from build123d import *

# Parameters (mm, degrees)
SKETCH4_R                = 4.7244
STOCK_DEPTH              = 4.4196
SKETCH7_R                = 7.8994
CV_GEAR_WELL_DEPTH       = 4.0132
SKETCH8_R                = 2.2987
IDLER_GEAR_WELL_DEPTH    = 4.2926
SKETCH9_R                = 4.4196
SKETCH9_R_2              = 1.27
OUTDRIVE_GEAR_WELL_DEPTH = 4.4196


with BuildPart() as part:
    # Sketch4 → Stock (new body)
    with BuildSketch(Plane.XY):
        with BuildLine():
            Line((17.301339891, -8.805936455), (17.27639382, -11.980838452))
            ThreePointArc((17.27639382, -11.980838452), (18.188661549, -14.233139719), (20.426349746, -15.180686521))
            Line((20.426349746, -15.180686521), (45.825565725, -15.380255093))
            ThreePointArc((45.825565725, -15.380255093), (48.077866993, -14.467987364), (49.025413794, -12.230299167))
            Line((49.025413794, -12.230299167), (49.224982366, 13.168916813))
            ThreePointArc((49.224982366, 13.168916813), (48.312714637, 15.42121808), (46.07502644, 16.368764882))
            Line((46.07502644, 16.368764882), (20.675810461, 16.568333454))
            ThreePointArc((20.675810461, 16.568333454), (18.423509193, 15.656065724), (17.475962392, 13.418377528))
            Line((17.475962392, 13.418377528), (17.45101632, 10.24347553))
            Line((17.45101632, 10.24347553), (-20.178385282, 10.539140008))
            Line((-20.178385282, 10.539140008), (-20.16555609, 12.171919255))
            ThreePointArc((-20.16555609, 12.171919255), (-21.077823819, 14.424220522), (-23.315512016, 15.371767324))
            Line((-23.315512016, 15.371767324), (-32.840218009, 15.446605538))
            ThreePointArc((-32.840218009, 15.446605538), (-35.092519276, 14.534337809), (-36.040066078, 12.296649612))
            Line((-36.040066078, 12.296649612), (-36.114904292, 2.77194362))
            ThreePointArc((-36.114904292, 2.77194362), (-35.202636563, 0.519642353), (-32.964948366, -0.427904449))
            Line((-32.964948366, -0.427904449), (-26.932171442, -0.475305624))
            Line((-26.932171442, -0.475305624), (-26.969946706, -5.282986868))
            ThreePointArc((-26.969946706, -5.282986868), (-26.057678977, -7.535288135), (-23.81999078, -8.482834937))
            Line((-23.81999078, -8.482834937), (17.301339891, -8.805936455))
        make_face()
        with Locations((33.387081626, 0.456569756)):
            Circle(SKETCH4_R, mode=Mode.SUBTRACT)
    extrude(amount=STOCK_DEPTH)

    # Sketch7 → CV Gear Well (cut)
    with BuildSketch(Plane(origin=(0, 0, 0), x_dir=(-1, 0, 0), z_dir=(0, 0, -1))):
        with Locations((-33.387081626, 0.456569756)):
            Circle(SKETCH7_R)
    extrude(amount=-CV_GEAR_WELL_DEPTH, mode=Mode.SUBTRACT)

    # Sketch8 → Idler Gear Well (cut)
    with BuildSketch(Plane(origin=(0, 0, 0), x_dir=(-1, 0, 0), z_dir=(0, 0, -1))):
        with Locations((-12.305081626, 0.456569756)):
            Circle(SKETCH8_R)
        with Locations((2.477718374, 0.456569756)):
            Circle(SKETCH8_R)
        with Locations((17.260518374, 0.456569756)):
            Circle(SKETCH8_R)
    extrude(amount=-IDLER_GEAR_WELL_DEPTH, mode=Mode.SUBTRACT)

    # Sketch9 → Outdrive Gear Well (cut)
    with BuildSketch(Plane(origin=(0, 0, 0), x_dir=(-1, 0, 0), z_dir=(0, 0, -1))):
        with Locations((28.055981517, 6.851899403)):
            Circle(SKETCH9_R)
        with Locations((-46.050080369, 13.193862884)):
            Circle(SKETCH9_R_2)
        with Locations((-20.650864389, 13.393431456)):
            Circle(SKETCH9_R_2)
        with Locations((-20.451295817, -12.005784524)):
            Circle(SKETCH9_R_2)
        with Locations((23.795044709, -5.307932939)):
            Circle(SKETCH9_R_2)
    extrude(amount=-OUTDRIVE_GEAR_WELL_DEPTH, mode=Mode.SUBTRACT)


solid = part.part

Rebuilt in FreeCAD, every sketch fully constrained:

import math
import FreeCAD as App
import Part
import Sketcher
Q = App.Units.Quantity

doc = App.newDocument("Part")
body = doc.addObject("PartDesign::Body", "Body")

# Sketch on XY plane
sketch1 = body.newObject("Sketcher::SketchObject", "Sketch")
sketch1.AttachmentSupport = (doc.getObject("XY_Plane"), [""])
sketch1.MapMode = "FlatFace"
sketch1.addGeometry([
    Part.LineSegment(App.Vector(17.30134, -8.805936, 0), App.Vector(17.276394, -11.980838, 0)),  # 0
    Part.ArcOfCircle(Part.Circle(App.Vector(20.451296, -12.005785, 0), App.Vector(0, 0, 1), 3.175), math.radians(179.549821), math.radians(269.549821)),  # 1
    Part.LineSegment(App.Vector(20.42635, -15.180687, 0), App.Vector(45.825566, -15.380255, 0)),  # 2
    Part.ArcOfCircle(Part.Circle(App.Vector(45.850512, -12.205353, 0), App.Vector(0, 0, 1), 3.175), math.radians(-90.450179), math.radians(-0.450179)),  # 3
    Part.LineSegment(App.Vector(49.025414, -12.230299, 0), App.Vector(49.224982, 13.168917, 0)),  # 4
    Part.ArcOfCircle(Part.Circle(App.Vector(46.05008, 13.193863, 0), App.Vector(0, 0, 1), 3.175), math.radians(-0.450179), math.radians(89.549821)),  # 5
    Part.LineSegment(App.Vector(46.075026, 16.368765, 0), App.Vector(20.67581, 16.568333, 0)),  # 6
    Part.ArcOfCircle(Part.Circle(App.Vector(20.650864, 13.393431, 0), App.Vector(0, 0, 1), 3.175), math.radians(89.549821), math.radians(179.549821)),  # 7
    Part.LineSegment(App.Vector(17.475962, 13.418378, 0), App.Vector(17.451016, 10.243476, 0)),  # 8
    Part.LineSegment(App.Vector(17.451016, 10.243476, 0), App.Vector(-20.178385, 10.53914, 0)),  # 9
    Part.LineSegment(App.Vector(-20.178385, 10.53914, 0), App.Vector(-20.165556, 12.171919, 0)),  # 10
    Part.ArcOfCircle(Part.Circle(App.Vector(-23.340458, 12.196865, 0), App.Vector(0, 0, 1), 3.175), math.radians(-0.450179), math.radians(89.549821)),  # 11
    Part.LineSegment(App.Vector(-23.315512, 15.371767, 0), App.Vector(-32.840218, 15.446606, 0)),  # 12
    Part.ArcOfCircle(Part.Circle(App.Vector(-32.865164, 12.271704, 0), App.Vector(0, 0, 1), 3.175), math.radians(89.549821), math.radians(179.549821)),  # 13
    Part.LineSegment(App.Vector(-36.040066, 12.29665, 0), App.Vector(-36.114904, 2.771944, 0)),  # 14
    Part.ArcOfCircle(Part.Circle(App.Vector(-32.940002, 2.746998, 0), App.Vector(0, 0, 1), 3.175), math.radians(179.549821), math.radians(269.549821)),  # 15
    Part.LineSegment(App.Vector(-32.964948, -0.427904, 0), App.Vector(-26.932171, -0.475306, 0)),  # 16
    Part.LineSegment(App.Vector(-26.932171, -0.475306, 0), App.Vector(-26.969947, -5.282987, 0)),  # 17
    Part.ArcOfCircle(Part.Circle(App.Vector(-23.795045, -5.307933, 0), App.Vector(0, 0, 1), 3.175), math.radians(179.549821), math.radians(269.549821)),  # 18
    Part.LineSegment(App.Vector(-23.819991, -8.482835, 0), App.Vector(17.30134, -8.805936, 0)),  # 19
    Part.Circle(App.Vector(33.387082, 0.45657, 0), App.Vector(0, 0, 1), 4.7244),  # 20
], False)
sketch1.addConstraint([
    Sketcher.Constraint("Tangent", 0, 2, 1, 1),
    Sketcher.Constraint("Tangent", 1, 2, 2, 1),
    Sketcher.Constraint("Tangent", 2, 2, 3, 1),
    Sketcher.Constraint("Tangent", 3, 2, 4, 1),
    Sketcher.Constraint("Tangent", 4, 2, 5, 1),
    Sketcher.Constraint("Tangent", 5, 2, 6, 1),
    Sketcher.Constraint("Tangent", 6, 2, 7, 1),
    Sketcher.Constraint("Tangent", 7, 2, 8, 1),
    Sketcher.Constraint("Coincident", 8, 2, 9, 1),
    Sketcher.Constraint("Coincident", 9, 2, 10, 1),
    Sketcher.Constraint("Tangent", 10, 2, 11, 1),
    Sketcher.Constraint("Tangent", 11, 2, 12, 1),
    Sketcher.Constraint("Tangent", 12, 2, 13, 1),
    Sketcher.Constraint("Tangent", 13, 2, 14, 1),
    Sketcher.Constraint("Tangent", 14, 2, 15, 1),
    Sketcher.Constraint("Tangent", 15, 2, 16, 1),
    Sketcher.Constraint("Coincident", 16, 2, 17, 1),
    Sketcher.Constraint("Tangent", 17, 2, 18, 1),
    Sketcher.Constraint("Tangent", 18, 2, 19, 1),
    Sketcher.Constraint("Coincident", 19, 2, 0, 1),
    Sketcher.Constraint("Equal", 1, 3),
    Sketcher.Constraint("Equal", 3, 5),
    Sketcher.Constraint("Equal", 5, 7),
    Sketcher.Constraint("Equal", 7, 11),
    Sketcher.Constraint("Equal", 11, 13),
    Sketcher.Constraint("Equal", 13, 15),
    Sketcher.Constraint("Equal", 15, 18),
    Sketcher.Constraint("Perpendicular", 0, 2),
    Sketcher.Constraint("Perpendicular", 2, 4),
    Sketcher.Constraint("Perpendicular", 4, 6),
    Sketcher.Constraint("Perpendicular", 6, 8),
    Sketcher.Constraint("Perpendicular", 8, 9),
    Sketcher.Constraint("Perpendicular", 9, 10),
    Sketcher.Constraint("Perpendicular", 10, 12),
    Sketcher.Constraint("Perpendicular", 12, 14),
    Sketcher.Constraint("Perpendicular", 14, 16),
    Sketcher.Constraint("Perpendicular", 16, 17),
    Sketcher.Constraint("Perpendicular", 17, 19),
    Sketcher.Constraint("Equal", 2, 4),
    Sketcher.Constraint("Equal", 4, 6),
    Sketcher.Constraint("Equal", 0, 8),
    Sketcher.Constraint("Equal", 12, 14),
    Sketcher.Constraint("Distance", 2, Q("1 in")),
    Sketcher.Constraint("Diameter", 20, Q("0.372 in")),
    Sketcher.Constraint("Radius", 1, Q("0.125 in")),
    Sketcher.Constraint("Distance", 0, Q("0.125 in")),
    Sketcher.Constraint("Distance", 12, Q("0.375 in")),
    Sketcher.Constraint("Distance", 19, Q("1.619 in")),
    Sketcher.Constraint("DistanceY", 3, 2, -1, 1, Q("12.230299 mm")),
    Sketcher.Constraint("DistanceX", 15, 3, 1, 3, Q("53.391298 mm")),
    Sketcher.Constraint("DistanceY", 18, 3, 11, 3, Q("17.504798 mm")),
    Sketcher.Constraint("DistanceX", 20, 3, 5, 3, Q("12.662999 mm")),
    Sketcher.Constraint("DistanceY", 0, 2, 5, 3, Q("25.174701 mm")),
    Sketcher.Constraint("DistanceX", -1, 1, 3, 3, Q("45.850512 mm")),
    Sketcher.Constraint("DistanceY", -1, 1, 20, 3, Q("0.45657 mm")),
])
pad1 = body.newObject("PartDesign::Pad", "Pad")
pad1.Profile = sketch1
pad1.Length = Q("0.174 in")

# Sketch on XY plane
sketch2 = body.newObject("Sketcher::SketchObject", "Sketch001")
sketch2.AttachmentSupport = (doc.getObject("XY_Plane"), [""])
sketch2.MapMode = "FlatFace"
sketch2.addGeometry(Part.Circle(App.Vector(33.387082, 0.45657, 0), App.Vector(0, 0, 1), 7.8994), False)
sketch2.addConstraint([
    Sketcher.Constraint("Diameter", 0, Q("0.622 in")),
    Sketcher.Constraint("DistanceX", -1, 1, 0, 3, Q("33.387082 mm")),
    Sketcher.Constraint("DistanceY", -1, 1, 0, 3, Q("0.45657 mm")),
])
pocket1 = body.newObject("PartDesign::Pocket", "Pocket")
pocket1.Profile = sketch2
pocket1.Length = Q("0.158 in")
pocket1.Reversed = True

# Sketch on XY plane
sketch3 = body.newObject("Sketcher::SketchObject", "Sketch002")
sketch3.AttachmentSupport = (doc.getObject("XY_Plane"), [""])
sketch3.MapMode = "FlatFace"
sketch3.addGeometry([
    Part.Circle(App.Vector(12.305082, 0.45657, 0), App.Vector(0, 0, 1), 2.2987),
    Part.Circle(App.Vector(-2.477718, 0.45657, 0), App.Vector(0, 0, 1), 2.2987),
    Part.Circle(App.Vector(-17.260518, 0.45657, 0), App.Vector(0, 0, 1), 2.2987),
], False)
sketch3.addConstraint([
    Sketcher.Constraint("Equal", 0, 1),
    Sketcher.Constraint("Equal", 1, 2),
    Sketcher.Constraint("Horizontal", 0, 3, 1, 3),
    Sketcher.Constraint("Horizontal", 1, 3, 2, 3),
    Sketcher.Constraint("Diameter", 0, Q("0.181 in")),
    Sketcher.Constraint("DistanceX", 1, 3, 0, 3, Q("0.582 in")),
    Sketcher.Constraint("DistanceX", 2, 3, 1, 3, Q("0.582 in")),
    Sketcher.Constraint("DistanceX", -1, 1, 0, 3, Q("12.305082 mm")),
    Sketcher.Constraint("DistanceY", -1, 1, 0, 3, Q("0.45657 mm")),
])
pocket2 = body.newObject("PartDesign::Pocket", "Pocket001")
pocket2.Profile = sketch3
pocket2.Length = Q("0.169 in")
pocket2.Reversed = True

# Sketch on XY plane
sketch4 = body.newObject("Sketcher::SketchObject", "Sketch003")
sketch4.AttachmentSupport = (doc.getObject("XY_Plane"), [""])
sketch4.MapMode = "FlatFace"
sketch4.addGeometry([
    Part.Circle(App.Vector(-28.055982, 6.851899, 0), App.Vector(0, 0, 1), 4.4196),  # 0
    Part.Circle(App.Vector(46.05008, 13.193863, 0), App.Vector(0, 0, 1), 1.27),  # 1
    Part.Circle(App.Vector(20.650864, 13.393431, 0), App.Vector(0, 0, 1), 1.27),  # 2
    Part.Circle(App.Vector(20.451296, -12.005785, 0), App.Vector(0, 0, 1), 1.27),  # 3
    Part.Circle(App.Vector(-23.795045, -5.307933, 0), App.Vector(0, 0, 1), 1.27),  # 4
], False)
sketch4.addConstraint([
    Sketcher.Constraint("Equal", 1, 2),
    Sketcher.Constraint("Equal", 2, 3),
    Sketcher.Constraint("Equal", 3, 4),
    Sketcher.Constraint("Diameter", 1, Q("0.1 in")),
    Sketcher.Constraint("Diameter", 0, Q("0.348 in")),
    Sketcher.Constraint("DistanceY", -1, 1, 0, 3, Q("6.851899 mm")),
    Sketcher.Constraint("DistanceX", 0, 3, -1, 1, Q("28.055982 mm")),
    Sketcher.Constraint("DistanceX", -1, 1, 1, 3, Q("46.05008 mm")),
    Sketcher.Constraint("DistanceY", -1, 1, 2, 3, Q("13.393431 mm")),
    Sketcher.Constraint("DistanceY", 1, 3, 2, 3, Q("0.199569 mm")),
    Sketcher.Constraint("DistanceX", 3, 3, 2, 3, Q("0.199569 mm")),
    Sketcher.Constraint("DistanceX", 4, 3, 3, 3, Q("44.246341 mm")),
    Sketcher.Constraint("DistanceY", 3, 3, 4, 3, Q("6.697852 mm")),
    Sketcher.Constraint("DistanceX", -1, 1, 2, 3, Q("20.650864 mm")),
    Sketcher.Constraint("DistanceY", 3, 3, -1, 1, Q("12.005785 mm")),
])
pocket3 = body.newObject("PartDesign::Pocket", "Pocket002")
pocket3.Profile = sketch4
pocket3.Length = Q("0.174 in")
pocket3.Reversed = True

doc.recompute()
